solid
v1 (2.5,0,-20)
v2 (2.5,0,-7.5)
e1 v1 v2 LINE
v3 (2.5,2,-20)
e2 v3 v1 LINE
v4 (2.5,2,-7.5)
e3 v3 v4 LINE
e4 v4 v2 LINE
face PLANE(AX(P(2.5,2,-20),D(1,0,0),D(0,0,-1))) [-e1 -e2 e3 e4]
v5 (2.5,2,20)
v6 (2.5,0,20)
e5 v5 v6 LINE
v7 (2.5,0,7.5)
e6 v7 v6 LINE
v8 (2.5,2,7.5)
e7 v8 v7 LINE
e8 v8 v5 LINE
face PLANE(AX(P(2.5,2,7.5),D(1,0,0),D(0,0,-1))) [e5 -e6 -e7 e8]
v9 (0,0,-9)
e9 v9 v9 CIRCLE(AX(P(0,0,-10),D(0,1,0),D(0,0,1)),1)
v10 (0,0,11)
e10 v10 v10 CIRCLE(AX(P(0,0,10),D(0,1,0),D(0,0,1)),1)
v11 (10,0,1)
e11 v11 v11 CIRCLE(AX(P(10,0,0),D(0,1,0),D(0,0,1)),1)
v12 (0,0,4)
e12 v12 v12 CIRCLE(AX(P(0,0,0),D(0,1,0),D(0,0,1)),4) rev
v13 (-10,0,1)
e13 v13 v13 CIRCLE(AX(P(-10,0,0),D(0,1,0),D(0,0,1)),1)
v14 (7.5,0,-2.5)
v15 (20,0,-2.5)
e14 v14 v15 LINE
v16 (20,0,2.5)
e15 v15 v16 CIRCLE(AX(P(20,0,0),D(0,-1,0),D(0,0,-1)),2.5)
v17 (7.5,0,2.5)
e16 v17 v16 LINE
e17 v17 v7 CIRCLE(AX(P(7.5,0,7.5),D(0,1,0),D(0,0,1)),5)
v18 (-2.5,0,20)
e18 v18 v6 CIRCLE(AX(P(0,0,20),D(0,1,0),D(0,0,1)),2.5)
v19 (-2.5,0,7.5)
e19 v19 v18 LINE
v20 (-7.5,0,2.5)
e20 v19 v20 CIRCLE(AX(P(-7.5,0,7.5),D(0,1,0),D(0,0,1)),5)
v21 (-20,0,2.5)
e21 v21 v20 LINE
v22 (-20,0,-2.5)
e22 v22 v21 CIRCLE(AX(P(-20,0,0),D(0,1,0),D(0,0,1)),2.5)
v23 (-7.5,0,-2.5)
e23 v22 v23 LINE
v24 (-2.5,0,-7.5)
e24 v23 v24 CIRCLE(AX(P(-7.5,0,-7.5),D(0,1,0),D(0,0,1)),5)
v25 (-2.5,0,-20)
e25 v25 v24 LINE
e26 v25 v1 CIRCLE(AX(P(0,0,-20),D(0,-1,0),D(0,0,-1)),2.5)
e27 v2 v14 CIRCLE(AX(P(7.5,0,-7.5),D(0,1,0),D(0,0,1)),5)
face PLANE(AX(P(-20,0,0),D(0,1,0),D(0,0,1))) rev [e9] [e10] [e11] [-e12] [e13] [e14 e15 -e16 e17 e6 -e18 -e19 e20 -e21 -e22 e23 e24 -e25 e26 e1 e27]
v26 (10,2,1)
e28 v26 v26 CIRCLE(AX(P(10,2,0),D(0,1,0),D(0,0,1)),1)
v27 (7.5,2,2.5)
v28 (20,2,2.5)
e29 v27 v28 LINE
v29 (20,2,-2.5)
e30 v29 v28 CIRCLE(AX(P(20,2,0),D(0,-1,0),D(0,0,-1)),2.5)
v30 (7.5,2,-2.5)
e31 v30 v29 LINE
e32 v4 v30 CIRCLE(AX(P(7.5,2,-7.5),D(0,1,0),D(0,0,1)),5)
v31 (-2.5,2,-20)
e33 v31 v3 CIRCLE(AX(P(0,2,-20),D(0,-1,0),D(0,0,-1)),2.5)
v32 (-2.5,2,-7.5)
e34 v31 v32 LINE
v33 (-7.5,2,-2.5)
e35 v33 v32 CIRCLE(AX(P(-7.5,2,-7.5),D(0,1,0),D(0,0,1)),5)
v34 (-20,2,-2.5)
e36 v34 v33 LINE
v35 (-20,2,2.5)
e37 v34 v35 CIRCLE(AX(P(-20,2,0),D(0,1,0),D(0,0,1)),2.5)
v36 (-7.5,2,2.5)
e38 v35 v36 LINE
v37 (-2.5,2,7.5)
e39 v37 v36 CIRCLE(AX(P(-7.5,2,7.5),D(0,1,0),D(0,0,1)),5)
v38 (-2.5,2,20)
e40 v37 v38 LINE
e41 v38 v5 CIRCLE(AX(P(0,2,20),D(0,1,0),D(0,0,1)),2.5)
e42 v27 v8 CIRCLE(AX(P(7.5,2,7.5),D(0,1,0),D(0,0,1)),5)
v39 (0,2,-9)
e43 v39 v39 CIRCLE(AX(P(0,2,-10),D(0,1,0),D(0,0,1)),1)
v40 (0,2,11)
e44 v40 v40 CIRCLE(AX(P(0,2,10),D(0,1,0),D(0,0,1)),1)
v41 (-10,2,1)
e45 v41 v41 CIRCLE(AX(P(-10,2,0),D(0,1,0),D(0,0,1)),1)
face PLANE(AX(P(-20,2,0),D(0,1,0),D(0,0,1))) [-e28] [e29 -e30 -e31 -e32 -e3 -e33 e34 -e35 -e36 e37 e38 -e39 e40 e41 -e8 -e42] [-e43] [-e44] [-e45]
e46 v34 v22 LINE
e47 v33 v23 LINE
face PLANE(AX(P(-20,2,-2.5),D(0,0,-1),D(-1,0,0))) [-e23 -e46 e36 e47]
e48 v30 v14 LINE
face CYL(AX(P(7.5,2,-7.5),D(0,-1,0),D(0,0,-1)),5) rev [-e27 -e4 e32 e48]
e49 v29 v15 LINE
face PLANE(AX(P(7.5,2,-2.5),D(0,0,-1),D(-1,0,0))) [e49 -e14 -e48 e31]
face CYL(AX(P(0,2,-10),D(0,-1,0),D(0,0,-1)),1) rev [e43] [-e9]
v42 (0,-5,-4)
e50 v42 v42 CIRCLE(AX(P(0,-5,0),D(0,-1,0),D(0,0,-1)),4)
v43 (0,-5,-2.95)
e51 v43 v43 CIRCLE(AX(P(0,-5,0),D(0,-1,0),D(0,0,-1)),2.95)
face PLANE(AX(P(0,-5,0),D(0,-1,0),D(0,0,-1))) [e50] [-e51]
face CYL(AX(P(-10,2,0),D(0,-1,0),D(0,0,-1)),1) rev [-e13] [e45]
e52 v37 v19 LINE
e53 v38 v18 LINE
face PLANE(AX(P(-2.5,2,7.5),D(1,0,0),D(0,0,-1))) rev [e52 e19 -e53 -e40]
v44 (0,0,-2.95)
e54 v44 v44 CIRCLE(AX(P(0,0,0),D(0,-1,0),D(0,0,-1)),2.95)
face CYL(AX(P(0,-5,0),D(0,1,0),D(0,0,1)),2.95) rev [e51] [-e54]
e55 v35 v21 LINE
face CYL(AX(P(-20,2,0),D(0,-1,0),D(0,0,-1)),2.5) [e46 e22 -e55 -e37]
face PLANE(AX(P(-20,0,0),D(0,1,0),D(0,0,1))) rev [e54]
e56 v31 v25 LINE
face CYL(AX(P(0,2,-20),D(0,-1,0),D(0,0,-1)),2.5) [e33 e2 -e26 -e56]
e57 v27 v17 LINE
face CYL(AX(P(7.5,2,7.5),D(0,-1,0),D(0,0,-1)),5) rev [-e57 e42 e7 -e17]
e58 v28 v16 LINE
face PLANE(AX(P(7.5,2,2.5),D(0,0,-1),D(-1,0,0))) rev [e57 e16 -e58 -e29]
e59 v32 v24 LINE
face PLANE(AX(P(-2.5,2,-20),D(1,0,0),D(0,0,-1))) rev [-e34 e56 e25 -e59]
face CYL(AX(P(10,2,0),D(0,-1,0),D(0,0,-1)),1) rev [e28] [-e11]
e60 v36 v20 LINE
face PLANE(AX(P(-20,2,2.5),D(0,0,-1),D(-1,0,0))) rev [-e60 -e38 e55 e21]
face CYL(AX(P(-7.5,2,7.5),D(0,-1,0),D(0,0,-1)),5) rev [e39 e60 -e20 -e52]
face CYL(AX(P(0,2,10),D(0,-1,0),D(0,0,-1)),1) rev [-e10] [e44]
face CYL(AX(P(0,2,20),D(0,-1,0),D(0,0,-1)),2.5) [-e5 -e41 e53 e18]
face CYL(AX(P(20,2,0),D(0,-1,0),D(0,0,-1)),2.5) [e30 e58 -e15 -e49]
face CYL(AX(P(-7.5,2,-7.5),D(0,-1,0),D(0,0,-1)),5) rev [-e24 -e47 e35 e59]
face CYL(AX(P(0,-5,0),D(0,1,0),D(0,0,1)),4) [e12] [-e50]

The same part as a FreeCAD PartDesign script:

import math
import FreeCAD as App
import Part
import Sketcher
Q = App.Units.Quantity

doc = App.newDocument("Part")
body = doc.addObject("PartDesign::Body", "Body")

# Sketch on XZ plane
sketch1 = doc.addObject("Sketcher::SketchObject", "Sketch")
body.addObject(sketch1)
sketch1.AttachmentSupport = (doc.XZ_Plane, [""])
sketch1.MapMode = "FlatFace"
sketch1.addGeometry(Part.LineSegment(App.Vector(2.5, -7.5, 0), App.Vector(2.5, -20, 0)), False)
sketch1.addGeometry(Part.ArcOfCircle(Part.Circle(App.Vector(0, -20, 0), App.Vector(0, 0, 1), 2.5), math.radians(180), math.radians(360)), False)
sketch1.addGeometry(Part.LineSegment(App.Vector(-2.5, -20, 0), App.Vector(-2.5, -7.5, 0)), False)
sketch1.addGeometry(Part.ArcOfCircle(Part.Circle(App.Vector(-7.5, -7.5, 0), App.Vector(0, 0, 1), 5), math.radians(0), math.radians(90)), False)
sketch1.addGeometry(Part.LineSegment(App.Vector(-7.5, -2.5, 0), App.Vector(-20, -2.5, 0)), False)
sketch1.addGeometry(Part.ArcOfCircle(Part.Circle(App.Vector(-20, 0, 0), App.Vector(0, 0, 1), 2.5), math.radians(90), math.radians(270)), False)
sketch1.addGeometry(Part.LineSegment(App.Vector(-20, 2.5, 0), App.Vector(-7.5, 2.5, 0)), False)
sketch1.addGeometry(Part.ArcOfCircle(Part.Circle(App.Vector(-7.5, 7.5, 0), App.Vector(0, 0, 1), 5), math.radians(-90), math.radians(0)), False)
sketch1.addGeometry(Part.LineSegment(App.Vector(-2.5, 7.5, 0), App.Vector(-2.5, 20, 0)), False)
sketch1.addGeometry(Part.ArcOfCircle(Part.Circle(App.Vector(0, 20, 0), App.Vector(0, 0, 1), 2.5), math.radians(0), math.radians(180)), False)
sketch1.addGeometry(Part.LineSegment(App.Vector(2.5, 20, 0), App.Vector(2.5, 7.5, 0)), False)
sketch1.addGeometry(Part.ArcOfCircle(Part.Circle(App.Vector(7.5, 7.5, 0), App.Vector(0, 0, 1), 5), math.radians(180), math.radians(270)), False)
sketch1.addGeometry(Part.LineSegment(App.Vector(7.5, 2.5, 0), App.Vector(20, 2.5, 0)), False)
sketch1.addGeometry(Part.ArcOfCircle(Part.Circle(App.Vector(20, 0, 0), App.Vector(0, 0, 1), 2.5), math.radians(-90), math.radians(90)), False)
sketch1.addGeometry(Part.LineSegment(App.Vector(20, -2.5, 0), App.Vector(7.5, -2.5, 0)), False)
sketch1.addGeometry(Part.ArcOfCircle(Part.Circle(App.Vector(7.5, -7.5, 0), App.Vector(0, 0, 1), 5), math.radians(90), math.radians(180)), False)
sketch1.addGeometry(Part.Circle(App.Vector(0, 10, 0), App.Vector(0, 0, 1), 1), False)
sketch1.addGeometry(Part.Circle(App.Vector(10, 0, 0), App.Vector(0, 0, 1), 1), False)
sketch1.addGeometry(Part.Circle(App.Vector(-10, 0, 0), App.Vector(0, 0, 1), 1), False)
sketch1.addGeometry(Part.Circle(App.Vector(0, -10, 0), App.Vector(0, 0, 1), 1), False)
sketch1.addConstraint(Sketcher.Constraint("Tangent", 0, 2, 1, 2))
sketch1.addConstraint(Sketcher.Constraint("Tangent", 1, 1, 2, 1))
sketch1.addConstraint(Sketcher.Constraint("Tangent", 2, 2, 3, 1))
sketch1.addConstraint(Sketcher.Constraint("Tangent", 3, 2, 4, 1))
sketch1.addConstraint(Sketcher.Constraint("Tangent", 4, 2, 5, 2))
sketch1.addConstraint(Sketcher.Constraint("Tangent", 5, 1, 6, 1))
sketch1.addConstraint(Sketcher.Constraint("Tangent", 6, 2, 7, 1))
sketch1.addConstraint(Sketcher.Constraint("Tangent", 7, 2, 8, 1))
sketch1.addConstraint(Sketcher.Constraint("Tangent", 8, 2, 9, 2))
sketch1.addConstraint(Sketcher.Constraint("Tangent", 9, 1, 10, 1))
sketch1.addConstraint(Sketcher.Constraint("Tangent", 10, 2, 11, 1))
sketch1.addConstraint(Sketcher.Constraint("Tangent", 11, 2, 12, 1))
sketch1.addConstraint(Sketcher.Constraint("Tangent", 12, 2, 13, 2))
sketch1.addConstraint(Sketcher.Constraint("Tangent", 13, 1, 14, 1))
sketch1.addConstraint(Sketcher.Constraint("Tangent", 14, 2, 15, 1))
sketch1.addConstraint(Sketcher.Constraint("Tangent", 15, 2, 0, 1))
sketch1.addConstraint(Sketcher.Constraint("Vertical", 0))
sketch1.addConstraint(Sketcher.Constraint("Vertical", 2))
sketch1.addConstraint(Sketcher.Constraint("Horizontal", 4))
sketch1.addConstraint(Sketcher.Constraint("Horizontal", 6))
sketch1.addConstraint(Sketcher.Constraint("Vertical", 8))
sketch1.addConstraint(Sketcher.Constraint("Vertical", 10))
sketch1.addConstraint(Sketcher.Constraint("Horizontal", 12))
sketch1.addConstraint(Sketcher.Constraint("Horizontal", 14))
sketch1.addConstraint(Sketcher.Constraint("Equal", 1, 5))
sketch1.addConstraint(Sketcher.Constraint("Equal", 3, 7))
sketch1.addConstraint(Sketcher.Constraint("Equal", 5, 9))
sketch1.addConstraint(Sketcher.Constraint("Equal", 7, 11))
sketch1.addConstraint(Sketcher.Constraint("Equal", 9, 13))
sketch1.addConstraint(Sketcher.Constraint("Equal", 11, 15))
sketch1.addConstraint(Sketcher.Constraint("Equal", 16, 17))
sketch1.addConstraint(Sketcher.Constraint("Equal", 17, 18))
sketch1.addConstraint(Sketcher.Constraint("Equal", 18, 19))
sketch1.addConstraint(Sketcher.Constraint("Symmetric", 1, 3, 9, 3, -1, 1))
sketch1.addConstraint(Sketcher.Constraint("Symmetric", 5, 3, 13, 3, -1, 1))
sketch1.addConstraint(Sketcher.Constraint("Symmetric", 17, 3, 18, 3, -1, 1))
sketch1.addConstraint(Sketcher.Constraint("Symmetric", 16, 3, 19, 3, -1, 1))
sketch1.addConstraint(Sketcher.Constraint("Symmetric", 7, 3, 11, 3, -2))
sketch1.addConstraint(Sketcher.Constraint("PointOnObject", 16, 3, -2))
sketch1.addConstraint(Sketcher.Constraint("PointOnObject", 17, 3, -1))
sketch1.addConstraint(Sketcher.Constraint("Equal", 14, 0))
sketch1.addConstraint(Sketcher.Constraint("Diameter", 16, Q("2 mm")))
sketch1.addConstraint(Sketcher.Constraint("Radius", 3, Q("5 mm")))
sketch1.addConstraint(Sketcher.Constraint("Radius", 1, Q("2.5 mm")))
sketch1.addConstraint(Sketcher.Constraint("DistanceX", 4, 2, 4, 1, Q("12.5 mm")))
sketch1.addConstraint(Sketcher.Constraint("DistanceY", -1, 1, 16, 3, Q("10 mm")))
sketch1.addConstraint(Sketcher.Constraint("DistanceX", -1, 1, 17, 3, Q("10 mm")))
pad1 = doc.addObject("PartDesign::Pad", "Pad")
body.addObject(pad1)
pad1.Profile = sketch1
pad1.Length = 2
pad1.Reversed = True

# Sketch on XZ plane
sketch2 = doc.addObject("Sketcher::SketchObject", "Sketch001")
body.addObject(sketch2)
sketch2.AttachmentSupport = (doc.XZ_Plane, [""])
sketch2.MapMode = "FlatFace"
sketch2.addGeometry(Part.Circle(App.Vector(0, 0, 0), App.Vector(0, 0, 1), 4), False)
sketch2.addGeometry(Part.Circle(App.Vector(0, 0, 0), App.Vector(0, 0, 1), 3), False)
sketch2.addConstraint(Sketcher.Constraint("Coincident", 0, 3, -1, 1))
sketch2.addConstraint(Sketcher.Constraint("Coincident", 1, 3, -1, 1))
sketch2.addConstraint(Sketcher.Constraint("Diameter", 0, Q("8 mm")))
sketch2.addConstraint(Sketcher.Constraint("Diameter", 1, Q("5.9 mm")))
pad2 = doc.addObject("PartDesign::Pad", "Pad001")
body.addObject(pad2)
pad2.Profile = sketch2
pad2.Length = 5

doc.recompute()
